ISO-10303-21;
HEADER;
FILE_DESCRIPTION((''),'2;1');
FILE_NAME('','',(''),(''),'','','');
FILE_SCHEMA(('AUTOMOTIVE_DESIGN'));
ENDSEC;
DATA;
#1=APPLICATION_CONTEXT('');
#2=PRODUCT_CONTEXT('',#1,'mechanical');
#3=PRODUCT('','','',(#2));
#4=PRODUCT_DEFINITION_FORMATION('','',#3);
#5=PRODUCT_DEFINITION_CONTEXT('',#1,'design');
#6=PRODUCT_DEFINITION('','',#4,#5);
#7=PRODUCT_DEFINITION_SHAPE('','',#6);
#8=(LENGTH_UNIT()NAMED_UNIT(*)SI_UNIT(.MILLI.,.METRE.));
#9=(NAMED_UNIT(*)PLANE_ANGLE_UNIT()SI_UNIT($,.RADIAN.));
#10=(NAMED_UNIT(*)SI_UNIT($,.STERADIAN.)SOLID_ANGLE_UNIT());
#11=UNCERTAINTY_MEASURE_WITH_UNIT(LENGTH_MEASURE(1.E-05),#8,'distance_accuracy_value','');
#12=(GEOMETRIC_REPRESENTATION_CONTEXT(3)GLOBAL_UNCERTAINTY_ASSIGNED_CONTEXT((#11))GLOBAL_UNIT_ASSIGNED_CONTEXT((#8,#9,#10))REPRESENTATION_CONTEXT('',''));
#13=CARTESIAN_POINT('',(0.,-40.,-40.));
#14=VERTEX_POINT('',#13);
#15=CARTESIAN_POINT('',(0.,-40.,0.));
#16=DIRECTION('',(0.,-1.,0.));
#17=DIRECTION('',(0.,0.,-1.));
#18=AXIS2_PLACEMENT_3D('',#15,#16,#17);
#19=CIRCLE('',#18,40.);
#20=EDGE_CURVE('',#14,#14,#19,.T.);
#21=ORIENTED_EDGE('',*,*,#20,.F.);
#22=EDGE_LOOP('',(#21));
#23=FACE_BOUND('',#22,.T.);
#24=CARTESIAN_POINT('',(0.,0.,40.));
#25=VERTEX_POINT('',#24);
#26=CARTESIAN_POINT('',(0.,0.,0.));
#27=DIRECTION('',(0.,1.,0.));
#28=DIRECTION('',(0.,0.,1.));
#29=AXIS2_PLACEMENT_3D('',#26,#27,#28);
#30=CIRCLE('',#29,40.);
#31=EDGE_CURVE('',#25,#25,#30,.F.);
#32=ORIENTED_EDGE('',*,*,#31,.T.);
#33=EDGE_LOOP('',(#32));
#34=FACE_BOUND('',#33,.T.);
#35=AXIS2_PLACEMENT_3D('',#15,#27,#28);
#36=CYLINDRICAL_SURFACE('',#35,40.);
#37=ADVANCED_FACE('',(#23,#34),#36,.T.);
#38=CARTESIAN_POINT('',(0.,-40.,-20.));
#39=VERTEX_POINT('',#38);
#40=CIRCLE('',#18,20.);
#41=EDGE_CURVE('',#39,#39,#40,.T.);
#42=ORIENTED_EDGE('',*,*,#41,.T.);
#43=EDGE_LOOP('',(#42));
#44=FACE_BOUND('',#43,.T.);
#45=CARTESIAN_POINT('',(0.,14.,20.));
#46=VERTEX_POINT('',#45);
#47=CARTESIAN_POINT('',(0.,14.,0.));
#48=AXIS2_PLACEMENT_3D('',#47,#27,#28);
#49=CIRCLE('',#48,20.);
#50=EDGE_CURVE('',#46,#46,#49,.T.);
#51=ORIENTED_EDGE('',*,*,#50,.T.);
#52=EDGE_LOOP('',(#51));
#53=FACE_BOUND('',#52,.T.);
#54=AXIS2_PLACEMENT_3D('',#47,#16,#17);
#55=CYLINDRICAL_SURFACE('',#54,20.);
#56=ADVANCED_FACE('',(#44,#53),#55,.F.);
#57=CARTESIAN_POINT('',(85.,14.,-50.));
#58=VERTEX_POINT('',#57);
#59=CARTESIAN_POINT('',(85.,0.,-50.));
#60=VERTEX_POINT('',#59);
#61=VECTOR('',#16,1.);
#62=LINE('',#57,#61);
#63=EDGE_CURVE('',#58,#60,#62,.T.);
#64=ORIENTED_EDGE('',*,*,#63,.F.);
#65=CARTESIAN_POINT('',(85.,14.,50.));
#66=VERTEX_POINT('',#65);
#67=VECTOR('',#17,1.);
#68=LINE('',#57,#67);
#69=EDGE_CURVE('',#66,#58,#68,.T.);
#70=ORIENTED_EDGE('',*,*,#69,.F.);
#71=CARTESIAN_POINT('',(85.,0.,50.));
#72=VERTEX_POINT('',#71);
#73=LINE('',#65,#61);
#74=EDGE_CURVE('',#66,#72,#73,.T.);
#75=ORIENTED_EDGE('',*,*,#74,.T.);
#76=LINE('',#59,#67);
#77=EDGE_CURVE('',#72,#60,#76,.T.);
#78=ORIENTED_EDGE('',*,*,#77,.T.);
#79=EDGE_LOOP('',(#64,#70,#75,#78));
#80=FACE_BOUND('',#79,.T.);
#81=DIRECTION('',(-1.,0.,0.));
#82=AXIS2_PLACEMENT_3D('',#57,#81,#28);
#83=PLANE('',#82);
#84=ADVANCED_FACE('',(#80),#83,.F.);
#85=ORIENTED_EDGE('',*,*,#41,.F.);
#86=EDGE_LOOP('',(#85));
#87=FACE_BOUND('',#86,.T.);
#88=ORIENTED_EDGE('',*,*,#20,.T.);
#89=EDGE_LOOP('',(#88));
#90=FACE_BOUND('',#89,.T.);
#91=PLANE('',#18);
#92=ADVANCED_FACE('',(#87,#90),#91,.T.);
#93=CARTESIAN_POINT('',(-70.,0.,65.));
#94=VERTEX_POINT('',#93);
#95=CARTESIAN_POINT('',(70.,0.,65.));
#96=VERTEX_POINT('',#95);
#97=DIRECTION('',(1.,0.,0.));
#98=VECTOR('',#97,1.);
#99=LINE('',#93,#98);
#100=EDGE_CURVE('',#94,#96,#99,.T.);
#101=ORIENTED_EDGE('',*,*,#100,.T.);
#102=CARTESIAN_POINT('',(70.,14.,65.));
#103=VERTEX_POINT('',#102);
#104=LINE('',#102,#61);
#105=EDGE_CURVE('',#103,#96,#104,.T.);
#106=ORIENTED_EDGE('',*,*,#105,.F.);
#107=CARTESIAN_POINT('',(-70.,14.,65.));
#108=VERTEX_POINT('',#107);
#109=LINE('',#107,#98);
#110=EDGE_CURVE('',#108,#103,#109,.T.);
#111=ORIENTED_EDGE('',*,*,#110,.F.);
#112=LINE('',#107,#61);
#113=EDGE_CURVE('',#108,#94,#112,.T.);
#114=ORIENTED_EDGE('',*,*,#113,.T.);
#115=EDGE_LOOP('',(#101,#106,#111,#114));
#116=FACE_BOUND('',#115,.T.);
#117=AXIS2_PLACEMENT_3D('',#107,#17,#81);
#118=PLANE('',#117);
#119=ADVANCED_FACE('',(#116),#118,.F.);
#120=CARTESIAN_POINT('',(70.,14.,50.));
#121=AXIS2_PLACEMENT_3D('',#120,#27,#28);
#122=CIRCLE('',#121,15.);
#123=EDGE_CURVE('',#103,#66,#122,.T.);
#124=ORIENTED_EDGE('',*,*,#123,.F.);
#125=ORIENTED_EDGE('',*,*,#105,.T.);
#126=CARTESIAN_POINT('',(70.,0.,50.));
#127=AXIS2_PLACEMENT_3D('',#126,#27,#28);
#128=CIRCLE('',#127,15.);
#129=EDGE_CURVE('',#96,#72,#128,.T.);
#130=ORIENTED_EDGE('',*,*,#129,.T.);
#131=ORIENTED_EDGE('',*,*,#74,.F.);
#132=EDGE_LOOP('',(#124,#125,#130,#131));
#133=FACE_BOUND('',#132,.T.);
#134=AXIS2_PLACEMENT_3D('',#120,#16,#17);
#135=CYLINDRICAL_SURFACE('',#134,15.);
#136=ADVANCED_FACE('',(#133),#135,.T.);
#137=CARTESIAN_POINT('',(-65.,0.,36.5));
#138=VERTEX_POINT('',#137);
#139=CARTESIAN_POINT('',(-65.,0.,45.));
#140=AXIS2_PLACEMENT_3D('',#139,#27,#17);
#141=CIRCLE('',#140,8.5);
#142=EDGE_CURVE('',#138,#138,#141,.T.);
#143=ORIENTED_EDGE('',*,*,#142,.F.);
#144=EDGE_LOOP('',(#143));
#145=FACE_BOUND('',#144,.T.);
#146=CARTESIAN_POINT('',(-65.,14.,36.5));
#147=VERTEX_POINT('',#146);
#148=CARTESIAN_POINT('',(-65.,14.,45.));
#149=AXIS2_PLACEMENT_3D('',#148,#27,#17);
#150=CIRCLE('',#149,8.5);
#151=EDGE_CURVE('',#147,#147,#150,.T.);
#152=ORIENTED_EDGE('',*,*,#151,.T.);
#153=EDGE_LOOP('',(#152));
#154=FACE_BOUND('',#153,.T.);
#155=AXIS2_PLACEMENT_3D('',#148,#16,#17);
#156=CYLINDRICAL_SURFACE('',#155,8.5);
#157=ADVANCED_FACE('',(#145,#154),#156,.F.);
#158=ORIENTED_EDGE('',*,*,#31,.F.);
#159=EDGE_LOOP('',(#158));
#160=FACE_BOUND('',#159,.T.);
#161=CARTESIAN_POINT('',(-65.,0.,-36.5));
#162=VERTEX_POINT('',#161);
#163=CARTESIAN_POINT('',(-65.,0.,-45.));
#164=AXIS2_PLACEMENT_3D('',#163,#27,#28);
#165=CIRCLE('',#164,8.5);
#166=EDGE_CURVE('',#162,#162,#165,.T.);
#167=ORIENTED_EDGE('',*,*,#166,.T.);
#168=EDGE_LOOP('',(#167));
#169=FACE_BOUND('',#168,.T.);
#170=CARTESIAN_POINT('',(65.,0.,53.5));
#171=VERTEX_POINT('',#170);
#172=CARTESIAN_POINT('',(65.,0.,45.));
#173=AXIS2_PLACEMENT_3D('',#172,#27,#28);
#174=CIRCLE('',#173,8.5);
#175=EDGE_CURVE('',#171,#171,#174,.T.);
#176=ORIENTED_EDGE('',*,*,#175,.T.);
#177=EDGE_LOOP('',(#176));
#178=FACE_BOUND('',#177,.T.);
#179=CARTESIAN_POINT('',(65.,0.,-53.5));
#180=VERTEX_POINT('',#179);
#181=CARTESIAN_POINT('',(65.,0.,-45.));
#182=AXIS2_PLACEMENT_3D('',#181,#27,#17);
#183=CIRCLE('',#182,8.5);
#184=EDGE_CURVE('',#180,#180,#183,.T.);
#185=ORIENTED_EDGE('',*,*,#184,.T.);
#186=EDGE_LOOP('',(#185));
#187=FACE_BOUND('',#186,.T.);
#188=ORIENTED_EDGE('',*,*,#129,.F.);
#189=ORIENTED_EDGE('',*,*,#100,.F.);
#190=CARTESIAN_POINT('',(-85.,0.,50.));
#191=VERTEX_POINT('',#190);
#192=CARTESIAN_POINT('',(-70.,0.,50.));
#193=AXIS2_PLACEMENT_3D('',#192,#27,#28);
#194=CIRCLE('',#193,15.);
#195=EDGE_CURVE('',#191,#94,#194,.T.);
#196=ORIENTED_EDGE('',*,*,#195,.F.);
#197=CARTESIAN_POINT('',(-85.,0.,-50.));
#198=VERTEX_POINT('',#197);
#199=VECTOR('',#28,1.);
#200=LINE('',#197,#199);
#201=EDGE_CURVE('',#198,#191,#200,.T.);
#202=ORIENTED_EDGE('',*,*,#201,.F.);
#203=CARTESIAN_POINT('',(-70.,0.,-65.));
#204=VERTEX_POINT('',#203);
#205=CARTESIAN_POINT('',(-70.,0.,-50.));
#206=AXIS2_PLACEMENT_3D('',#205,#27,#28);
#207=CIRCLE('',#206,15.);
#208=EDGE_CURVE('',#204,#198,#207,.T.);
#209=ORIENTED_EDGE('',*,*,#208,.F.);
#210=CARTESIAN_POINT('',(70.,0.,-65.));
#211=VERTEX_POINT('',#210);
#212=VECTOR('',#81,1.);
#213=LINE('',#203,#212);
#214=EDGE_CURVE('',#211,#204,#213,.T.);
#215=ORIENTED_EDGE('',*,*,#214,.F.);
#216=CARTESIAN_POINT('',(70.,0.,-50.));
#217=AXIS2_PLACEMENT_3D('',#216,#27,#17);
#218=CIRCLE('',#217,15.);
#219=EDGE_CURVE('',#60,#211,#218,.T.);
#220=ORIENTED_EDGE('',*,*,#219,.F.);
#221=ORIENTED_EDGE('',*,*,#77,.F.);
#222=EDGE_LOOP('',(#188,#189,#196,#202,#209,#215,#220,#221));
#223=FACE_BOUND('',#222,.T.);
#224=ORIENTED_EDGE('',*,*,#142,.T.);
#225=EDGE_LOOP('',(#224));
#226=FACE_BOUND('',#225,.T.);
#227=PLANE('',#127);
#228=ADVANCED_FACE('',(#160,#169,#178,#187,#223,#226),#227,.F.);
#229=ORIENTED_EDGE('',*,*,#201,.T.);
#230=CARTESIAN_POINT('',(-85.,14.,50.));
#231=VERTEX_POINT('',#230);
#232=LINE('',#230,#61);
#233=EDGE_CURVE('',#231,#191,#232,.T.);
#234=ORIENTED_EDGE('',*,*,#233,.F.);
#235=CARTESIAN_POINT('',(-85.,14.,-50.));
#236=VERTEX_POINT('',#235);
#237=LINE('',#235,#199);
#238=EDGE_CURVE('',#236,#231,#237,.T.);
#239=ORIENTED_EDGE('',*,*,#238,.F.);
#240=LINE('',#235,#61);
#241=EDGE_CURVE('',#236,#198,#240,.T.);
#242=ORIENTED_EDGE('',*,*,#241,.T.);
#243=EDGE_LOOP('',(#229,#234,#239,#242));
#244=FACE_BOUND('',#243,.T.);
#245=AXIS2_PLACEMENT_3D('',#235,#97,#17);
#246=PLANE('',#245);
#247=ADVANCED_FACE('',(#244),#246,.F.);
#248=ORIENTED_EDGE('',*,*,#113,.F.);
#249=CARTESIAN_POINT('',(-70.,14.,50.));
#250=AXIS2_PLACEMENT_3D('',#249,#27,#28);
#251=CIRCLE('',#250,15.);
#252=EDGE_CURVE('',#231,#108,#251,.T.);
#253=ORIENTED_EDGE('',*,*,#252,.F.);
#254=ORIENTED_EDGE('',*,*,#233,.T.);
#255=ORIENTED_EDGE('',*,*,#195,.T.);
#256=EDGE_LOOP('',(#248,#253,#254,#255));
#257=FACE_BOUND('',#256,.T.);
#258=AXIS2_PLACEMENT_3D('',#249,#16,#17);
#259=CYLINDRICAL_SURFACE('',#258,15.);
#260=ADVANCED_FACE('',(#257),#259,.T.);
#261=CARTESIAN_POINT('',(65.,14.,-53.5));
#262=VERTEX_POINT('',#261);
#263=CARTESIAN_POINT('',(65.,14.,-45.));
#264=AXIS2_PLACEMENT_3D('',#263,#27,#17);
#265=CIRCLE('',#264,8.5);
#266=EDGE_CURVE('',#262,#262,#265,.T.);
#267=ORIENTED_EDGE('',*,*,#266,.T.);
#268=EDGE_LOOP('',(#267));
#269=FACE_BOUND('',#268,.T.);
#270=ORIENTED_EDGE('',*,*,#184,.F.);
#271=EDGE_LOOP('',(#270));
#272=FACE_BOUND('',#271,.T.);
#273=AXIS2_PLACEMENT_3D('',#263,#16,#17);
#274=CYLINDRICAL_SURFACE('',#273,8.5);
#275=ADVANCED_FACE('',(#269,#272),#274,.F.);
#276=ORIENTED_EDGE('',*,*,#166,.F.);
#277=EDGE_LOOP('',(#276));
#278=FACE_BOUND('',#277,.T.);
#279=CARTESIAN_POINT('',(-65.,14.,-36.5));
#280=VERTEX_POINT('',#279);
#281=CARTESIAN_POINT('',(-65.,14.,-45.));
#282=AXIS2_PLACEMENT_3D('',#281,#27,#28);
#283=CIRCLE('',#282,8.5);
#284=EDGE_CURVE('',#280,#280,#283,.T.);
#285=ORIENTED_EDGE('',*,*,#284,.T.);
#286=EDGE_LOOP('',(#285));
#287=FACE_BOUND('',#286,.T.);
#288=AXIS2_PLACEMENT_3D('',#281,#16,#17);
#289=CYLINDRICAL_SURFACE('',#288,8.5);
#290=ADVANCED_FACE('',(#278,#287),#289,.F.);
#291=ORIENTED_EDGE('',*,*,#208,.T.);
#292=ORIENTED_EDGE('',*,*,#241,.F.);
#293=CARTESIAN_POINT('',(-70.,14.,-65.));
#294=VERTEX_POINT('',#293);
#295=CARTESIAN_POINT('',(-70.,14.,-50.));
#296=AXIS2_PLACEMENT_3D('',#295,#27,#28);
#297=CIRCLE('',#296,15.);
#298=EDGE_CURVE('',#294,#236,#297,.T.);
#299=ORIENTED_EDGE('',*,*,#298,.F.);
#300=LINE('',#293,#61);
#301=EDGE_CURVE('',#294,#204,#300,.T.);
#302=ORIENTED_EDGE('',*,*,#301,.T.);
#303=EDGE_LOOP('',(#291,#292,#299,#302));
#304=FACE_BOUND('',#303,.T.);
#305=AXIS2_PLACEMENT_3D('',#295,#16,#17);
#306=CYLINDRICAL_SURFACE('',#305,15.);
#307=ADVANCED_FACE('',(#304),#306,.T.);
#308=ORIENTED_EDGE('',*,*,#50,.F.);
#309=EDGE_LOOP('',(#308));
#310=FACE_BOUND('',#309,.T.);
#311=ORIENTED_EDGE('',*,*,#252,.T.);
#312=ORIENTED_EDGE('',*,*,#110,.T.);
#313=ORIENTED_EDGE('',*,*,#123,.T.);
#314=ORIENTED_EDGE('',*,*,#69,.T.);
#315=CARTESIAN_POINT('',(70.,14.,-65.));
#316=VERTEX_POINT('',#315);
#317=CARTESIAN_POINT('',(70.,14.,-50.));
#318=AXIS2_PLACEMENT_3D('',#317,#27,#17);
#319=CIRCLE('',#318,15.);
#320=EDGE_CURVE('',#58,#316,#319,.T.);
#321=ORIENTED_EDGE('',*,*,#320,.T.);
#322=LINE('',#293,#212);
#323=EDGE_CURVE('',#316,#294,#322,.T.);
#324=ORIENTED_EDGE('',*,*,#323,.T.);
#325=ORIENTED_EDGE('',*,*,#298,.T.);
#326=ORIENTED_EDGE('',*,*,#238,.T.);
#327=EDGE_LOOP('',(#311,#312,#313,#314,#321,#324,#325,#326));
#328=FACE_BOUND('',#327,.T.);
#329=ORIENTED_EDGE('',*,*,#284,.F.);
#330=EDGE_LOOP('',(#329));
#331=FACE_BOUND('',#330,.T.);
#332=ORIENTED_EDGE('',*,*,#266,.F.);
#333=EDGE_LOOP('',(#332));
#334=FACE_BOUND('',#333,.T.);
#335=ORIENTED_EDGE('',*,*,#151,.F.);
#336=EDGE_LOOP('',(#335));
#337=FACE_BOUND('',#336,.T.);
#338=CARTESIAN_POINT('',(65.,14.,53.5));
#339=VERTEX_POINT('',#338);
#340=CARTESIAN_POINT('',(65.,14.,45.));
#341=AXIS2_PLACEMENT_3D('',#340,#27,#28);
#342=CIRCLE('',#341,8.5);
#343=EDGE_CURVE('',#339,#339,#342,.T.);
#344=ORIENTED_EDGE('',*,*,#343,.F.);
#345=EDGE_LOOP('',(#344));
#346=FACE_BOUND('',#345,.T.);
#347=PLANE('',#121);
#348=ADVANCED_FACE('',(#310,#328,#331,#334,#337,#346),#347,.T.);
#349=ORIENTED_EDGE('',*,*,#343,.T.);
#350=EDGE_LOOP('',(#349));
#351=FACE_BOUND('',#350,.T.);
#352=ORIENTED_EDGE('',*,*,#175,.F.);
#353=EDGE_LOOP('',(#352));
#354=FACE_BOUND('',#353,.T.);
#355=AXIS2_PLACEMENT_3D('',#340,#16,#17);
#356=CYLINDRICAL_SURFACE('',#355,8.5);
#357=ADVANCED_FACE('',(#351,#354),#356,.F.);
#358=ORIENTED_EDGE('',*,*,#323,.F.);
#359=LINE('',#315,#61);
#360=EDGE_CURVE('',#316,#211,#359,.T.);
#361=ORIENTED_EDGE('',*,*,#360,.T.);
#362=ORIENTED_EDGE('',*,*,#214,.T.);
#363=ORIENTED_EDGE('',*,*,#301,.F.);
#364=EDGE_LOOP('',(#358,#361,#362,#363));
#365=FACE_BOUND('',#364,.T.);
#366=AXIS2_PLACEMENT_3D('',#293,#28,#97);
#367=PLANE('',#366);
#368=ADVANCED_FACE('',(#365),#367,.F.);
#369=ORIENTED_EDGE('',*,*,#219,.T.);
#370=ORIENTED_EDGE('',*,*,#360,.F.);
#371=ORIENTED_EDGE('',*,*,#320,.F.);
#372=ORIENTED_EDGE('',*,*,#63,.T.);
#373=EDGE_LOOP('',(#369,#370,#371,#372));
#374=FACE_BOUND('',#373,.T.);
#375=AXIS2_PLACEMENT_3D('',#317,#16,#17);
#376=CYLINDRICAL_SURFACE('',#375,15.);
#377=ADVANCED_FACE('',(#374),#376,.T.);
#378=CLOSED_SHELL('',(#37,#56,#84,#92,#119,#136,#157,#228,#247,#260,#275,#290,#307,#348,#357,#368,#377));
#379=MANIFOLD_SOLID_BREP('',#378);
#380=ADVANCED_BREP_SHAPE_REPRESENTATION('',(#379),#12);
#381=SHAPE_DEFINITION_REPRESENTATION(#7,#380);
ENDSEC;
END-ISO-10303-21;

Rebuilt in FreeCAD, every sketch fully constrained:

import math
import FreeCAD as App
import Part
import Sketcher
from FreeCAD import Vector

doc = App.newDocument("Part")
body = doc.addObject("PartDesign::Body", "Body")

sketch1 = body.newObject("Sketcher::SketchObject", "Sketch")
sketch1.AttachmentSupport = (doc.getObject("XZ_Plane"), [""])
sketch1.MapMode = "FlatFace"
sketch1.addGeometry(Part.LineSegment(Vector(70, -65, 0), Vector(-70, -65, 0)), False)
sketch1.addGeometry(Part.ArcOfCircle(Part.Circle(Vector(-70, -50, 0), Vector(0, 0, 1), 15), math.radians(180), math.radians(270)), False)
sketch1.addGeometry(Part.LineSegment(Vector(-85, -50, 0), Vector(-85, 50, 0)), False)
sketch1.addGeometry(Part.ArcOfCircle(Part.Circle(Vector(-70, 50, 0), Vector(0, 0, 1), 15), math.radians(90), math.radians(180)), False)
sketch1.addGeometry(Part.LineSegment(Vector(-70, 65, 0), Vector(70, 65, 0)), False)
sketch1.addGeometry(Part.ArcOfCircle(Part.Circle(Vector(70, 50, 0), Vector(0, 0, 1), 15), math.radians(0), math.radians(90)), False)
sketch1.addGeometry(Part.LineSegment(Vector(85, 50, 0), Vector(85, -50, 0)), False)
sketch1.addGeometry(Part.ArcOfCircle(Part.Circle(Vector(70, -50, 0), Vector(0, 0, 1), 15), math.radians(-90), math.radians(0)), False)
sketch1.addGeometry(Part.Circle(Vector(65, 45, 0), Vector(0, 0, 1), 8.5), False)
sketch1.addGeometry(Part.Circle(Vector(-65, 45, 0), Vector(0, 0, 1), 8.5), False)
sketch1.addGeometry(Part.Circle(Vector(0, 0, 0), Vector(0, 0, 1), 20), False)
sketch1.addGeometry(Part.Circle(Vector(65, -45, 0), Vector(0, 0, 1), 8.5), False)
sketch1.addGeometry(Part.Circle(Vector(-65, -45, 0), Vector(0, 0, 1), 8.5), False)
sketch1.addConstraint(Sketcher.Constraint("Tangent", 0, 2, 1, 2))
sketch1.addConstraint(Sketcher.Constraint("Tangent", 1, 1, 2, 1))
sketch1.addConstraint(Sketcher.Constraint("Tangent", 2, 2, 3, 2))
sketch1.addConstraint(Sketcher.Constraint("Tangent", 3, 1, 4, 1))
sketch1.addConstraint(Sketcher.Constraint("Tangent", 4, 2, 5, 2))
sketch1.addConstraint(Sketcher.Constraint("Tangent", 5, 1, 6, 1))
sketch1.addConstraint(Sketcher.Constraint("Tangent", 6, 2, 7, 2))
sketch1.addConstraint(Sketcher.Constraint("Tangent", 7, 1, 0, 1))
sketch1.addConstraint(Sketcher.Constraint("Horizontal", 0))
sketch1.addConstraint(Sketcher.Constraint("Vertical", 2))
sketch1.addConstraint(Sketcher.Constraint("Horizontal", 4))
sketch1.addConstraint(Sketcher.Constraint("Vertical", 6))
sketch1.addConstraint(Sketcher.Constraint("Coincident", 10, 3, -1, 1))
sketch1.addConstraint(Sketcher.Constraint("Equal", 1, 3))
sketch1.addConstraint(Sketcher.Constraint("Equal", 3, 5))
sketch1.addConstraint(Sketcher.Constraint("Equal", 5, 7))
sketch1.addConstraint(Sketcher.Constraint("Equal", 8, 9))
sketch1.addConstraint(Sketcher.Constraint("Equal", 9, 11))
sketch1.addConstraint(Sketcher.Constraint("Equal", 11, 12))
sketch1.addConstraint(Sketcher.Constraint("Symmetric", 1, 3, 5, 3, -1, 1))
sketch1.addConstraint(Sketcher.Constraint("Symmetric", 9, 3, 11, 3, -1, 1))
sketch1.addConstraint(Sketcher.Constraint("Symmetric", 8, 3, 12, 3, -1, 1))
sketch1.addConstraint(Sketcher.Constraint("Symmetric", 8, 3, 9, 3, -2))
sketch1.addConstraint(Sketcher.Constraint("Diameter", 8, 17.0))
sketch1.addConstraint(Sketcher.Constraint("Diameter", 10, 40.0))
sketch1.addConstraint(Sketcher.Constraint("Radius", 1, 15.0))
sketch1.addConstraint(Sketcher.Constraint("DistanceX", 0, 2, 0, 1, 140.0))
sketch1.addConstraint(Sketcher.Constraint("DistanceY", 2, 1, 2, 2, 100.0))
sketch1.addConstraint(Sketcher.Constraint("DistanceX", -1, 1, 8, 3, 65.0))
sketch1.addConstraint(Sketcher.Constraint("DistanceY", -1, 1, 8, 3, 45.0))
pad1 = body.newObject("PartDesign::Pad", "Pad")
pad1.Profile = sketch1
pad1.Length = 14
pad1.Reversed = True

sketch2 = body.newObject("Sketcher::SketchObject", "Sketch001")
sketch2.AttachmentSupport = (doc.getObject("XZ_Plane"), [""])
sketch2.MapMode = "FlatFace"
sketch2.AttachmentOffset = App.Placement(Vector(0, 0, 40), App.Rotation())
sketch2.addGeometry(Part.Circle(Vector(0, 0, 0), Vector(0, 0, 1), 40), False)
sketch2.addGeometry(Part.Circle(Vector(0, 0, 0), Vector(0, 0, 1), 20), False)
sketch2.addConstraint(Sketcher.Constraint("Coincident", 0, 3, -1, 1))
sketch2.addConstraint(Sketcher.Constraint("Coincident", 1, 3, -1, 1))
sketch2.addConstraint(Sketcher.Constraint("Diameter", 0, 80.0))
sketch2.addConstraint(Sketcher.Constraint("Diameter", 1, 40.0))
pad2 = body.newObject("PartDesign::Pad", "Pad001")
pad2.Profile = sketch2
pad2.Length = 40
pad2.Reversed = True

doc.recompute()
